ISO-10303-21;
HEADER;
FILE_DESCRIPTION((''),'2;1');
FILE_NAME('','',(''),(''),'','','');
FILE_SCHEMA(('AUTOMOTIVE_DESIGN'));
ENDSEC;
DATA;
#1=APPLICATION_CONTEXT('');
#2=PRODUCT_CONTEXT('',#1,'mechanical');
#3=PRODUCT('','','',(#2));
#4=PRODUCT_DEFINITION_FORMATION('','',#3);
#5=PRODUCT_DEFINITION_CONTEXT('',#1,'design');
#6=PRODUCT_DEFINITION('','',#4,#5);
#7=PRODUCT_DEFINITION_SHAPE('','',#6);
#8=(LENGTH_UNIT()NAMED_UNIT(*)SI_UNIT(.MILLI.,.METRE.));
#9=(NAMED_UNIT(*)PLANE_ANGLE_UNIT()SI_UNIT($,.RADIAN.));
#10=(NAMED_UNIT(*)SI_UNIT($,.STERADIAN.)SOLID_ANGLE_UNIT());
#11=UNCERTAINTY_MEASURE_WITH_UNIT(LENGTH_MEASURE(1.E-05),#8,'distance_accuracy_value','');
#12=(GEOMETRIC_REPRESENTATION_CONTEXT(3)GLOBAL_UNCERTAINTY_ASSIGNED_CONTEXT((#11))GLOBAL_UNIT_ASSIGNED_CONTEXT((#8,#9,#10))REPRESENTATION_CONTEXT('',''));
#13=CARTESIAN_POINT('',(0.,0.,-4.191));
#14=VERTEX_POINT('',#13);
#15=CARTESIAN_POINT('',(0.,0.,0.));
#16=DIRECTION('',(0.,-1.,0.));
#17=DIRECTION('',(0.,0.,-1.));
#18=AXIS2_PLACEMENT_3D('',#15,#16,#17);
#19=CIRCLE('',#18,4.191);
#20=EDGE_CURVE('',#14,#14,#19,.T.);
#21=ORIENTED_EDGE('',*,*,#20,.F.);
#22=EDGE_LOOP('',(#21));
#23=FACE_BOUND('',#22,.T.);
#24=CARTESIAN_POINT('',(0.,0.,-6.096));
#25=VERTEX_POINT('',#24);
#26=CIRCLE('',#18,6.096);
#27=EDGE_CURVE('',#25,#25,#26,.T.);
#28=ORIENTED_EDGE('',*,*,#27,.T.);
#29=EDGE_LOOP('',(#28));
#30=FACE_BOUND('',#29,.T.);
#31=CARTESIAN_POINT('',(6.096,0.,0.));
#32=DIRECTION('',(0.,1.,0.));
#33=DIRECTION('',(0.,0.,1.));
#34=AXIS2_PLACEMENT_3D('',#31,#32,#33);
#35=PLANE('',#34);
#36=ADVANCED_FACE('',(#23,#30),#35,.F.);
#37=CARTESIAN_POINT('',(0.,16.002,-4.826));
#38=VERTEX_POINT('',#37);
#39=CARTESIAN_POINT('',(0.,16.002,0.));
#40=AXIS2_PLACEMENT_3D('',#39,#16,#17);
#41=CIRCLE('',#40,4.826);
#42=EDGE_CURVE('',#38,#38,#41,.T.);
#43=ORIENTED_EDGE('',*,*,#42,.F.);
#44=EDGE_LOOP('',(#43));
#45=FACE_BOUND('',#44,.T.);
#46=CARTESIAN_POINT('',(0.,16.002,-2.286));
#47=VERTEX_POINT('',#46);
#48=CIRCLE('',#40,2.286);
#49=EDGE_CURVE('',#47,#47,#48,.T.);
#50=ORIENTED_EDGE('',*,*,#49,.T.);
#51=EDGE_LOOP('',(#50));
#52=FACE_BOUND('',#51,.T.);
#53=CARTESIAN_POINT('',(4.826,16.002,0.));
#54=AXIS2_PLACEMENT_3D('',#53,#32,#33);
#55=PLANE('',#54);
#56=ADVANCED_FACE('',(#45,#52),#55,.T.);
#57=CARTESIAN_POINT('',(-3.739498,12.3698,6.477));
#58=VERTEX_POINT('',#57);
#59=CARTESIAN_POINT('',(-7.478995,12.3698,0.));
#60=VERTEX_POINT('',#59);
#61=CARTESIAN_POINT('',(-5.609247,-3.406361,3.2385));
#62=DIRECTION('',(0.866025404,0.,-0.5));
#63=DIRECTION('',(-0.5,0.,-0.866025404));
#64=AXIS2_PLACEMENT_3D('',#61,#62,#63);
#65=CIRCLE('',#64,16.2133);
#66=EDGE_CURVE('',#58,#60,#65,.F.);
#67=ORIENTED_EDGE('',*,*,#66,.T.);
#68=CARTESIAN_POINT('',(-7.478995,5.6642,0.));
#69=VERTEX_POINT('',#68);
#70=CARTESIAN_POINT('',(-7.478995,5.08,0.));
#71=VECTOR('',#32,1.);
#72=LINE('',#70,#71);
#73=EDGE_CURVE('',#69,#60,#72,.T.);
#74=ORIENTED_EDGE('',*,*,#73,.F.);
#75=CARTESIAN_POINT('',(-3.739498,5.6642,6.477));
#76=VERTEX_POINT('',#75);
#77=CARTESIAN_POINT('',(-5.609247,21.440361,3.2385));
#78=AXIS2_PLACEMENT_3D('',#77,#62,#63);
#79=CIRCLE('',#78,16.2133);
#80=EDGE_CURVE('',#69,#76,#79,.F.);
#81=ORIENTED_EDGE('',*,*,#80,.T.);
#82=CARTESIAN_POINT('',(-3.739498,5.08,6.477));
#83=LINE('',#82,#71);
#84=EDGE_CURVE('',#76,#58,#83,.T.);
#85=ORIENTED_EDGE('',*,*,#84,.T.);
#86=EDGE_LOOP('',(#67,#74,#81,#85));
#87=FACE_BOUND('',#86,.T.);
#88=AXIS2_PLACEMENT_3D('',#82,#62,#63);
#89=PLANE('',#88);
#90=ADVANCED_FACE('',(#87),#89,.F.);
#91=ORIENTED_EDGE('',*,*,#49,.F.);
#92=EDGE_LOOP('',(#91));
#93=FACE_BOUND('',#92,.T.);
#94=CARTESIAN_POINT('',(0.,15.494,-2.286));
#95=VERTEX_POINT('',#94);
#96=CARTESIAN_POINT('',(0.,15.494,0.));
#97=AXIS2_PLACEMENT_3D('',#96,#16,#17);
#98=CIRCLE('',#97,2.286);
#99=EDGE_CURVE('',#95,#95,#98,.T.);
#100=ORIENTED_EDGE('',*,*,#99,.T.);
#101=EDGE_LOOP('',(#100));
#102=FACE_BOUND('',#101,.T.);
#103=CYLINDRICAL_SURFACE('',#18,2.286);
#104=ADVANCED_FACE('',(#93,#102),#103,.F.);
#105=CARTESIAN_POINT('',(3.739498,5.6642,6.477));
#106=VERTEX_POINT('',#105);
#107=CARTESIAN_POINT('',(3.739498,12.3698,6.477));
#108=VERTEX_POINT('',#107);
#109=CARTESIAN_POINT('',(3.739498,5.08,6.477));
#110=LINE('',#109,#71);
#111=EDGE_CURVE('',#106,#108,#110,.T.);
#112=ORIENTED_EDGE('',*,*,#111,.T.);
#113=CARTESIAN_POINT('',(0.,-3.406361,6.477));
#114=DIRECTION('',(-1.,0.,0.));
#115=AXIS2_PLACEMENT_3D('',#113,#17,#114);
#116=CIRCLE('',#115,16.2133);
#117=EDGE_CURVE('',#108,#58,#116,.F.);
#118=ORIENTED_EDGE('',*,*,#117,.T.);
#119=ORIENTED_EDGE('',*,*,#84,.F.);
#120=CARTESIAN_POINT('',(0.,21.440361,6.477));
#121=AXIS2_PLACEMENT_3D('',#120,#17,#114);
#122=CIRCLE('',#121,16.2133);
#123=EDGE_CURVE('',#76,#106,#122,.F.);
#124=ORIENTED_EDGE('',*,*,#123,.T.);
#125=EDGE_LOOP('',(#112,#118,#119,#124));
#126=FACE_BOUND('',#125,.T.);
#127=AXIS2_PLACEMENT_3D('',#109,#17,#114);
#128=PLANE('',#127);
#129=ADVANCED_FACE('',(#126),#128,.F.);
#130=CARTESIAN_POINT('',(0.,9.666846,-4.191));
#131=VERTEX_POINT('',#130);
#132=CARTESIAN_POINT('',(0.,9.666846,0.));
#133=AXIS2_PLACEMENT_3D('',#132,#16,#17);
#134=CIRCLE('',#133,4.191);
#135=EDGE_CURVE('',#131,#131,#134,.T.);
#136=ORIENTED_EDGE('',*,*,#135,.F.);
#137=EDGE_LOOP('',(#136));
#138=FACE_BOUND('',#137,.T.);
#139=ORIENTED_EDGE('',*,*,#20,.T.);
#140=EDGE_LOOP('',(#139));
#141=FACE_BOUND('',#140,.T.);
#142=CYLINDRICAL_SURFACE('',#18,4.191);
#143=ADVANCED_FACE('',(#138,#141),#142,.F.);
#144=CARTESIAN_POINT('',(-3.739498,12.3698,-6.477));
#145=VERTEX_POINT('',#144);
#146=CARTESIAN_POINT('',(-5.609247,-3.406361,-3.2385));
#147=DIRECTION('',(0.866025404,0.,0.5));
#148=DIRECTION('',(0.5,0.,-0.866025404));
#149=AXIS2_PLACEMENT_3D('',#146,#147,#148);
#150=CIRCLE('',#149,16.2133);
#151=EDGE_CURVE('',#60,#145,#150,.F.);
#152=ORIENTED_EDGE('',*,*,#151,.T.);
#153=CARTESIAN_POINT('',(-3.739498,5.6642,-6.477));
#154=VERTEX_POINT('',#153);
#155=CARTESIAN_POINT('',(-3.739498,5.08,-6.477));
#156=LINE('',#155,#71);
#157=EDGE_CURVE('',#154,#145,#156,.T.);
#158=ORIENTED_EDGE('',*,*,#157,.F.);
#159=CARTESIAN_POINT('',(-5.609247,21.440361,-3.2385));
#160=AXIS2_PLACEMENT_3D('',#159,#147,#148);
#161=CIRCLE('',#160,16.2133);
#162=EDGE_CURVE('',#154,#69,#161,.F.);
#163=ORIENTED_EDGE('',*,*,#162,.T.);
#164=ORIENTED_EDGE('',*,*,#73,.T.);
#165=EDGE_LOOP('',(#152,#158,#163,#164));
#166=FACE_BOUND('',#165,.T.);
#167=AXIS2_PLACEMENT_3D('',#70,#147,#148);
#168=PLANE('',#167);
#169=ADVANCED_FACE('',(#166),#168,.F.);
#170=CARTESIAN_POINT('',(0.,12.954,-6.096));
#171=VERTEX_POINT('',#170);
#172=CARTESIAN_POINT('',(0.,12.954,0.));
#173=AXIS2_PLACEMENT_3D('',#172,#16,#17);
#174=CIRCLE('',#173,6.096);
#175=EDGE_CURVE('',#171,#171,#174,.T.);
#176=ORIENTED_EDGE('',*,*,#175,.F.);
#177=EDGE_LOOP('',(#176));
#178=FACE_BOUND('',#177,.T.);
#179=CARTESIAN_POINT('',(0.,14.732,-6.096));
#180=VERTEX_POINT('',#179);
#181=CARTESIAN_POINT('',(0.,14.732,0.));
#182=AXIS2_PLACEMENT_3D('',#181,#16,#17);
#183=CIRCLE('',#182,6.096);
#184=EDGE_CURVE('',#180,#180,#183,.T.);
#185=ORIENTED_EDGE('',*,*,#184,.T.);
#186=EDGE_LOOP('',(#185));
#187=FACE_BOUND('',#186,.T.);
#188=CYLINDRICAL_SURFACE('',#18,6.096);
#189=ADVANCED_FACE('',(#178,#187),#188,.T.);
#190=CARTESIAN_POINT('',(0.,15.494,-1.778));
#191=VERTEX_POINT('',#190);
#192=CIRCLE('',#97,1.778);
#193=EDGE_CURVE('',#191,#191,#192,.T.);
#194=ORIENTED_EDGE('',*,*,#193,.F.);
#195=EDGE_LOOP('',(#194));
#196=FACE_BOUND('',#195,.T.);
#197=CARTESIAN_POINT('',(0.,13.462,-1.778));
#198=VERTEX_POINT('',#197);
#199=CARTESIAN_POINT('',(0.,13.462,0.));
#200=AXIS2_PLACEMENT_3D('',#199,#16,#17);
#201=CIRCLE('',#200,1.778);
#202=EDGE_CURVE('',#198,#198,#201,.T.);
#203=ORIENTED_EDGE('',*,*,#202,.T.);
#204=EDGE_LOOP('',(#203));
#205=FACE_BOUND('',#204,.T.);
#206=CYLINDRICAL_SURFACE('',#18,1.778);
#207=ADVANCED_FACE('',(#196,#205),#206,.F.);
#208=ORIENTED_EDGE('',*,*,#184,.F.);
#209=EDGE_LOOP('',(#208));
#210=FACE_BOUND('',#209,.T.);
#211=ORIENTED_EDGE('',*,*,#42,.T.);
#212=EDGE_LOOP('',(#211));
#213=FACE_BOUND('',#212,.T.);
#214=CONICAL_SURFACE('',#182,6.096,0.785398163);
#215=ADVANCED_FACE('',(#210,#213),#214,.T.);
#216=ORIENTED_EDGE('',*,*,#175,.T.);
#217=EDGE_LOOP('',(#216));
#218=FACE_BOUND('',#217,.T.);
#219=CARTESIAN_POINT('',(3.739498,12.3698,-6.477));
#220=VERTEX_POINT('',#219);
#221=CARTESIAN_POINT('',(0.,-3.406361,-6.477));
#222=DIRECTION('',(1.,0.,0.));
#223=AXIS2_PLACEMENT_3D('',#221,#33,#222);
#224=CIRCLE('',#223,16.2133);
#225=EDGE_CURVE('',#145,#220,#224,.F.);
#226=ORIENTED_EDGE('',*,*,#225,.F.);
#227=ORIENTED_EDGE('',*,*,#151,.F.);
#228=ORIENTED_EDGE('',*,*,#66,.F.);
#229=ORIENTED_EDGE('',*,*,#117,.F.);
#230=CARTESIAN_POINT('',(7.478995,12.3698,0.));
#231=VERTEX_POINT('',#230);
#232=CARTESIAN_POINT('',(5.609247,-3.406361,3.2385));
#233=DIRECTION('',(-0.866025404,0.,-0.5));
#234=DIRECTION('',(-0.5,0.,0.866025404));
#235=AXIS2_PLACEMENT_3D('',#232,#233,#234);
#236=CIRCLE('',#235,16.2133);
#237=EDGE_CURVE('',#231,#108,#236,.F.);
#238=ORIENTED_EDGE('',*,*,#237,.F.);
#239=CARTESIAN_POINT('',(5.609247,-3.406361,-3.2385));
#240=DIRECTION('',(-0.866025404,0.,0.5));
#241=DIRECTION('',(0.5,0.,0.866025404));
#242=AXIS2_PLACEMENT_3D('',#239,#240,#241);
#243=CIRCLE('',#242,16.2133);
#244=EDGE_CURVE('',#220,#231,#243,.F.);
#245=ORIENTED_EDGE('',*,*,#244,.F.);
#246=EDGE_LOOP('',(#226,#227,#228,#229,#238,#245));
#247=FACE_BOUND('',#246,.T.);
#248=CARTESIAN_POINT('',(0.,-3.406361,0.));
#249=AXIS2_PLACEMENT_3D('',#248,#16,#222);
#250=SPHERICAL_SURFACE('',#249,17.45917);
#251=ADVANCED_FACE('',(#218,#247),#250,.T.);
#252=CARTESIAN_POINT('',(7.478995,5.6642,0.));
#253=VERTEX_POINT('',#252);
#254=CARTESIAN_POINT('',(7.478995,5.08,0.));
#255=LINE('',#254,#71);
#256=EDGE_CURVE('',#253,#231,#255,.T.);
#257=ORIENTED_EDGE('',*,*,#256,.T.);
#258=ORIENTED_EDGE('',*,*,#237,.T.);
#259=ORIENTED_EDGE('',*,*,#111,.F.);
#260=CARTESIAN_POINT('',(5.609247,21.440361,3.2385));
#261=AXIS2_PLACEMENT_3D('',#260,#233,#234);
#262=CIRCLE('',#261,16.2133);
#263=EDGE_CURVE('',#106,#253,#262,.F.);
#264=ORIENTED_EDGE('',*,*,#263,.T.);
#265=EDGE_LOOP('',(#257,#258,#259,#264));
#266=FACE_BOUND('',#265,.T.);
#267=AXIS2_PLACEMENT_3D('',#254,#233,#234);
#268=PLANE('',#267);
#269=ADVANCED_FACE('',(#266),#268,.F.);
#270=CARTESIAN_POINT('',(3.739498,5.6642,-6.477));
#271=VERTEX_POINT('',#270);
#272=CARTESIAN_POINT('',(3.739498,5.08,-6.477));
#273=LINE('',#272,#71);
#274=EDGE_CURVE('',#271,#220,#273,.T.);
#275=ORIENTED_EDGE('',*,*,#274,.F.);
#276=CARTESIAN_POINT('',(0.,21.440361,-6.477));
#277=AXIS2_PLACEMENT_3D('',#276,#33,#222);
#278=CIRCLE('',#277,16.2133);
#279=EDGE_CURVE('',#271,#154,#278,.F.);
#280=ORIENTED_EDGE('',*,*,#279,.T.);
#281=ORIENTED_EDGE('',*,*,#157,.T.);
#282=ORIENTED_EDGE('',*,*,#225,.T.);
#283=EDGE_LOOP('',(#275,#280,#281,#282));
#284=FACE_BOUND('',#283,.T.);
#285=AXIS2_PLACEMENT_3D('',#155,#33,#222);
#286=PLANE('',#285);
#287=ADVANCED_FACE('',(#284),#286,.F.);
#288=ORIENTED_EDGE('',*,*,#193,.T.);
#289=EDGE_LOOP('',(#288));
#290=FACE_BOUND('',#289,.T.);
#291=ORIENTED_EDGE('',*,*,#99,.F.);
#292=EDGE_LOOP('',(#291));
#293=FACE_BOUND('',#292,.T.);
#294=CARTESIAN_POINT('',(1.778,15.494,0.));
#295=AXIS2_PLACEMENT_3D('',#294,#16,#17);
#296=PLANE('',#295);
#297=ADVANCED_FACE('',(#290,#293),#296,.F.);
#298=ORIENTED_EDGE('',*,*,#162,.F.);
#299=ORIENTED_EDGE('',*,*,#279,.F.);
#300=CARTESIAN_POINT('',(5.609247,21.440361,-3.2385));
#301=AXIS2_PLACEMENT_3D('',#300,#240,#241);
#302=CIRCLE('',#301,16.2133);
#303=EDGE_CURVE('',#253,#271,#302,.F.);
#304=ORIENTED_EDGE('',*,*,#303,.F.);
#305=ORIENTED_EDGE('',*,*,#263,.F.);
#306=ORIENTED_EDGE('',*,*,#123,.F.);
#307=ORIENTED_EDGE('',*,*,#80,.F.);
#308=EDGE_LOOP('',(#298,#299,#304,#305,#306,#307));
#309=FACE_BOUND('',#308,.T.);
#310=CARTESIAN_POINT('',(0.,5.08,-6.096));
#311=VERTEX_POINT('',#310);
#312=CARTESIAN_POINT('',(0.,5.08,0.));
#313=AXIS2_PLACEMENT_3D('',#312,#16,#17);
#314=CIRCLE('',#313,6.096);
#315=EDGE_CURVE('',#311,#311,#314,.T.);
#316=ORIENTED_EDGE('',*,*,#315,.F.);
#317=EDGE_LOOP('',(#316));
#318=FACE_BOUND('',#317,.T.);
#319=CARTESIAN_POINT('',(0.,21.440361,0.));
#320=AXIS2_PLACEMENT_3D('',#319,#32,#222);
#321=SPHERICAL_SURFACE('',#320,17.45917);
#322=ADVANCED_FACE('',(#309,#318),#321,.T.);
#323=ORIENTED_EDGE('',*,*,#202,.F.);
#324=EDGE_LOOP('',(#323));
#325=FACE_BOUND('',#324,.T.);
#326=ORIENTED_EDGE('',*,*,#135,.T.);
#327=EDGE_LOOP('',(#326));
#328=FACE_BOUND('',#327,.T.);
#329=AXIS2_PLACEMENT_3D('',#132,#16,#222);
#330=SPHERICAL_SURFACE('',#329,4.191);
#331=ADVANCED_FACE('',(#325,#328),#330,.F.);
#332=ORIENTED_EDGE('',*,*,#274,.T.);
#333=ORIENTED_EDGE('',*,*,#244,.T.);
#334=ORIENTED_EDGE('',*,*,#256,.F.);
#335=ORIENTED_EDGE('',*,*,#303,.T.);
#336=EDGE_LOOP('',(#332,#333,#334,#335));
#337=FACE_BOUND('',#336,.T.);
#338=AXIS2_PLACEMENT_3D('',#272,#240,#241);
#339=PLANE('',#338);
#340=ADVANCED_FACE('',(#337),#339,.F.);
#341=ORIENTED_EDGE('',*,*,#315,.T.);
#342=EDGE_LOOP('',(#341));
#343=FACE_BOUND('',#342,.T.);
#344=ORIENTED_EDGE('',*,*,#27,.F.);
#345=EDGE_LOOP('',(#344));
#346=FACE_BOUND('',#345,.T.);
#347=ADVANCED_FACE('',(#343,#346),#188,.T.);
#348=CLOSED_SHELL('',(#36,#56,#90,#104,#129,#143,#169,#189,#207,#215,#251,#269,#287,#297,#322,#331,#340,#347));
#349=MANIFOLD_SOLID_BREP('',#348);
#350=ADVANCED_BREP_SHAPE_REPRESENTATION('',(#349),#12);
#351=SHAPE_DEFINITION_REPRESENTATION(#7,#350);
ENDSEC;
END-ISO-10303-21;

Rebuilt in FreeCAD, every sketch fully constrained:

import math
import FreeCAD as App
import Part
import Sketcher
Q = App.Units.Quantity


def add_polygon(sketch, points):
    """Adds a closed chain of lines whose ends are joined by coincident constraints."""
    first, n = sketch.GeometryCount, len(points)
    for a, b in zip(points, points[1:] + points[:1]):
        sketch.addGeometry(Part.LineSegment(App.Vector(*a, 0), App.Vector(*b, 0)), False)
    for i in range(n):
        sketch.addConstraint(Sketcher.Constraint("Coincident", first + i, 2, first + (i + 1) % n, 1))

doc = App.newDocument("Part")
body = doc.addObject("PartDesign::Body", "Body")

# Sketch on XY plane
sketch1 = body.newObject("Sketcher::SketchObject", "Sketch")
sketch1.AttachmentSupport = (doc.getObject("XY_Plane"), [""])
sketch1.MapMode = "FlatFace"
sketch1.addGeometry(Part.LineSegment(App.Vector(6.1, 0, 0), App.Vector(6.1, 14.7, 0)), False)
sketch1.addGeometry(Part.LineSegment(App.Vector(6.1, 14.7, 0), App.Vector(4.8, 16, 0)), False)
sketch1.addGeometry(Part.LineSegment(App.Vector(4.8, 16, 0), App.Vector(2.3, 16, 0)), False)
sketch1.addGeometry(Part.LineSegment(App.Vector(2.3, 16, 0), App.Vector(2.3, 15.5, 0)), False)
sketch1.addGeometry(Part.LineSegment(App.Vector(2.3, 15.5, 0), App.Vector(1.8, 15.5, 0)), False)
sketch1.addGeometry(Part.LineSegment(App.Vector(1.8, 15.5, 0), App.Vector(1.8, 13.5, 0)), False)
sketch1.addGeometry(Part.ArcOfCircle(Part.Circle(App.Vector(0, 9.7, 0), App.Vector(0, 0, 1), 4.2), math.radians(0), math.radians(65)), False)
sketch1.addGeometry(Part.LineSegment(App.Vector(4.2, 9.7, 0), App.Vector(4.2, 0, 0)), False)
sketch1.addGeometry(Part.LineSegment(App.Vector(4.2, 0, 0), App.Vector(6.1, 0, 0)), False)
sketch1.addConstraint(Sketcher.Constraint("Coincident", 0, 2, 1, 1))
sketch1.addConstraint(Sketcher.Constraint("Coincident", 1, 2, 2, 1))
sketch1.addConstraint(Sketcher.Constraint("Coincident", 2, 2, 3, 1))
sketch1.addConstraint(Sketcher.Constraint("Coincident", 3, 2, 4, 1))
sketch1.addConstraint(Sketcher.Constraint("Coincident", 4, 2, 5, 1))
sketch1.addConstraint(Sketcher.Constraint("Coincident", 5, 2, 6, 2))
sketch1.addConstraint(Sketcher.Constraint("Tangent", 6, 1, 7, 1))
sketch1.addConstraint(Sketcher.Constraint("Coincident", 7, 2, 8, 1))
sketch1.addConstraint(Sketcher.Constraint("Coincident", 8, 2, 0, 1))
sketch1.addConstraint(Sketcher.Constraint("Vertical", 0))
sketch1.addConstraint(Sketcher.Constraint("Horizontal", 2))
sketch1.addConstraint(Sketcher.Constraint("Vertical", 3))
sketch1.addConstraint(Sketcher.Constraint("Horizontal", 4))
sketch1.addConstraint(Sketcher.Constraint("Vertical", 5))
sketch1.addConstraint(Sketcher.Constraint("Vertical", 7))
sketch1.addConstraint(Sketcher.Constraint("Horizontal", 8))
sketch1.addConstraint(Sketcher.Constraint("PointOnObject", 6, 3, -2))
sketch1.addConstraint(Sketcher.Constraint("PointOnObject", 7, 2, -1))
sketch1.addConstraint(Sketcher.Constraint("Equal", 4, 3))
sketch1.addConstraint(Sketcher.Constraint("DistanceX", 2, 2, 2, 1, Q("0.1 in")))
sketch1.addConstraint(Sketcher.Constraint("Angle", 1, Q("135 deg")))
sketch1.addConstraint(Sketcher.Constraint("Radius", 6, Q("0.165 in")))
sketch1.addConstraint(Sketcher.Constraint("DistanceX", 4, 2, 4, 1, Q("0.02 in")))
sketch1.addConstraint(Sketcher.Constraint("DistanceY", 0, 1, 0, 2, Q("0.58 in")))
sketch1.addConstraint(Sketcher.Constraint("DistanceY", 5, 2, 5, 1, Q("0.08 in")))
sketch1.addConstraint(Sketcher.Constraint("DistanceX", 8, 1, 8, 2, Q("0.075 in")))
sketch1.addConstraint(Sketcher.Constraint("DistanceX", -1, 1, 1, 2, Q("0.19 in")))
revolution = body.newObject("PartDesign::Revolution", "Revolution")
revolution.Profile = sketch1
revolution.ReferenceAxis = (sketch1, ["V_Axis"])
revolution.Angle = 360

# Sketch on XZ plane
sketch2 = body.newObject("Sketcher::SketchObject", "Sketch001")
sketch2.AttachmentSupport = (doc.getObject("XZ_Plane"), [""])
sketch2.MapMode = "FlatFace"
sketch2.AttachmentOffset = App.Placement(App.Vector(0, 0, -0.51 * 25.4), App.Rotation())
add_polygon(sketch2, [(4, -6), (-4, -6), (-7, 0), (-4, 6), (4, 6), (7, 0)])  # lines 0-5
sketch2.addGeometry(Part.Circle(App.Vector(0, 0, 0), App.Vector(0, 0, 1), 6), False)  # 6
sketch2.addConstraint(Sketcher.Constraint("Horizontal", 0))
sketch2.addConstraint(Sketcher.Constraint("Horizontal", 3))
sketch2.addConstraint(Sketcher.Constraint("Coincident", 6, 3, -1, 1))
sketch2.addConstraint(Sketcher.Constraint("Symmetric", 0, 2, 3, 2, -1, 1))
sketch2.addConstraint(Sketcher.Constraint("Symmetric", 1, 2, 4, 2, -1, 1))
sketch2.addConstraint(Sketcher.Constraint("PointOnObject", 1, 2, -1))
sketch2.addConstraint(Sketcher.Constraint("Parallel", 2, 5))
sketch2.addConstraint(Sketcher.Constraint("Vertical", 0, 2, 2, 2))
sketch2.addConstraint(Sketcher.Constraint("Diameter", 6, Q("0.48 in")))
sketch2.addConstraint(Sketcher.Constraint("Angle", 1, Q("120 deg")))
sketch2.addConstraint(Sketcher.Constraint("DistanceY", 0, 2, 2, 2, Q("0.51 in")))
sketch2.addConstraint(Sketcher.Constraint("DistanceX", 0, 2, 0, 1, Q("7.478995 mm")))
pad1 = body.newObject("PartDesign::Pad", "Pad")
pad1.Profile = sketch2
pad1.Length = Q("0.31 in")

# Sketch on XY plane
sketch3 = body.newObject("Sketcher::SketchObject", "Sketch002")
sketch3.AttachmentSupport = (doc.getObject("XY_Plane"), [""])
sketch3.MapMode = "FlatFace"
sketch3.addGeometry(Part.LineSegment(App.Vector(7.5, 13, 0), App.Vector(6.1, 13, 0)), False)
sketch3.addGeometry(Part.ArcOfCircle(Part.Circle(App.Vector(0, -3.4, 0), App.Vector(0, 0, 1), 17.5), math.radians(64.64), math.radians(69.56)), False)
sketch3.addGeometry(Part.LineSegment(App.Vector(7.5, 12.4, 0), App.Vector(7.5, 13, 0)), False)
sketch3.addConstraint(Sketcher.Constraint("Coincident", 0, 2, 1, 2))
sketch3.addConstraint(Sketcher.Constraint("Coincident", 1, 1, 2, 1))
sketch3.addConstraint(Sketcher.Constraint("Coincident", 2, 2, 0, 1))
sketch3.addConstraint(Sketcher.Constraint("Horizontal", 0))
sketch3.addConstraint(Sketcher.Constraint("Vertical", 2))
sketch3.addConstraint(Sketcher.Constraint("PointOnObject", 1, 3, -2))
sketch3.addConstraint(Sketcher.Constraint("DistanceY", 2, 1, 2, 2, Q("0.023 in")))
sketch3.addConstraint(Sketcher.Constraint("DistanceX", -1, 1, 0, 2, Q("0.24 in")))
sketch3.addConstraint(Sketcher.Constraint("DistanceY", -1, 1, 0, 2, Q("0.51 in")))
sketch3.addConstraint(Sketcher.Constraint("Radius", 1, Q("17.45917 mm")))
groove = body.newObject("PartDesign::Groove", "Groove")
groove.Profile = sketch3
groove.ReferenceAxis = (sketch3, ["V_Axis"])
groove.Angle = 360
doc.recompute()

datumplane = body.newObject("PartDesign::Plane", "DatumPlane")
datumplane.AttachmentSupport = (doc.getObject("XZ_Plane"), [""])
datumplane.MapMode = "FlatFace"
datumplane.AttachmentOffset = App.Placement(App.Vector(0, 0, -0.355 * 25.4), App.Rotation())
mirrored = body.newObject("PartDesign::Mirrored", "Mirrored")
mirrored.Originals = [groove]
mirrored.MirrorPlane = (datumplane, [""])
body.Tip = mirrored

doc.recompute()
